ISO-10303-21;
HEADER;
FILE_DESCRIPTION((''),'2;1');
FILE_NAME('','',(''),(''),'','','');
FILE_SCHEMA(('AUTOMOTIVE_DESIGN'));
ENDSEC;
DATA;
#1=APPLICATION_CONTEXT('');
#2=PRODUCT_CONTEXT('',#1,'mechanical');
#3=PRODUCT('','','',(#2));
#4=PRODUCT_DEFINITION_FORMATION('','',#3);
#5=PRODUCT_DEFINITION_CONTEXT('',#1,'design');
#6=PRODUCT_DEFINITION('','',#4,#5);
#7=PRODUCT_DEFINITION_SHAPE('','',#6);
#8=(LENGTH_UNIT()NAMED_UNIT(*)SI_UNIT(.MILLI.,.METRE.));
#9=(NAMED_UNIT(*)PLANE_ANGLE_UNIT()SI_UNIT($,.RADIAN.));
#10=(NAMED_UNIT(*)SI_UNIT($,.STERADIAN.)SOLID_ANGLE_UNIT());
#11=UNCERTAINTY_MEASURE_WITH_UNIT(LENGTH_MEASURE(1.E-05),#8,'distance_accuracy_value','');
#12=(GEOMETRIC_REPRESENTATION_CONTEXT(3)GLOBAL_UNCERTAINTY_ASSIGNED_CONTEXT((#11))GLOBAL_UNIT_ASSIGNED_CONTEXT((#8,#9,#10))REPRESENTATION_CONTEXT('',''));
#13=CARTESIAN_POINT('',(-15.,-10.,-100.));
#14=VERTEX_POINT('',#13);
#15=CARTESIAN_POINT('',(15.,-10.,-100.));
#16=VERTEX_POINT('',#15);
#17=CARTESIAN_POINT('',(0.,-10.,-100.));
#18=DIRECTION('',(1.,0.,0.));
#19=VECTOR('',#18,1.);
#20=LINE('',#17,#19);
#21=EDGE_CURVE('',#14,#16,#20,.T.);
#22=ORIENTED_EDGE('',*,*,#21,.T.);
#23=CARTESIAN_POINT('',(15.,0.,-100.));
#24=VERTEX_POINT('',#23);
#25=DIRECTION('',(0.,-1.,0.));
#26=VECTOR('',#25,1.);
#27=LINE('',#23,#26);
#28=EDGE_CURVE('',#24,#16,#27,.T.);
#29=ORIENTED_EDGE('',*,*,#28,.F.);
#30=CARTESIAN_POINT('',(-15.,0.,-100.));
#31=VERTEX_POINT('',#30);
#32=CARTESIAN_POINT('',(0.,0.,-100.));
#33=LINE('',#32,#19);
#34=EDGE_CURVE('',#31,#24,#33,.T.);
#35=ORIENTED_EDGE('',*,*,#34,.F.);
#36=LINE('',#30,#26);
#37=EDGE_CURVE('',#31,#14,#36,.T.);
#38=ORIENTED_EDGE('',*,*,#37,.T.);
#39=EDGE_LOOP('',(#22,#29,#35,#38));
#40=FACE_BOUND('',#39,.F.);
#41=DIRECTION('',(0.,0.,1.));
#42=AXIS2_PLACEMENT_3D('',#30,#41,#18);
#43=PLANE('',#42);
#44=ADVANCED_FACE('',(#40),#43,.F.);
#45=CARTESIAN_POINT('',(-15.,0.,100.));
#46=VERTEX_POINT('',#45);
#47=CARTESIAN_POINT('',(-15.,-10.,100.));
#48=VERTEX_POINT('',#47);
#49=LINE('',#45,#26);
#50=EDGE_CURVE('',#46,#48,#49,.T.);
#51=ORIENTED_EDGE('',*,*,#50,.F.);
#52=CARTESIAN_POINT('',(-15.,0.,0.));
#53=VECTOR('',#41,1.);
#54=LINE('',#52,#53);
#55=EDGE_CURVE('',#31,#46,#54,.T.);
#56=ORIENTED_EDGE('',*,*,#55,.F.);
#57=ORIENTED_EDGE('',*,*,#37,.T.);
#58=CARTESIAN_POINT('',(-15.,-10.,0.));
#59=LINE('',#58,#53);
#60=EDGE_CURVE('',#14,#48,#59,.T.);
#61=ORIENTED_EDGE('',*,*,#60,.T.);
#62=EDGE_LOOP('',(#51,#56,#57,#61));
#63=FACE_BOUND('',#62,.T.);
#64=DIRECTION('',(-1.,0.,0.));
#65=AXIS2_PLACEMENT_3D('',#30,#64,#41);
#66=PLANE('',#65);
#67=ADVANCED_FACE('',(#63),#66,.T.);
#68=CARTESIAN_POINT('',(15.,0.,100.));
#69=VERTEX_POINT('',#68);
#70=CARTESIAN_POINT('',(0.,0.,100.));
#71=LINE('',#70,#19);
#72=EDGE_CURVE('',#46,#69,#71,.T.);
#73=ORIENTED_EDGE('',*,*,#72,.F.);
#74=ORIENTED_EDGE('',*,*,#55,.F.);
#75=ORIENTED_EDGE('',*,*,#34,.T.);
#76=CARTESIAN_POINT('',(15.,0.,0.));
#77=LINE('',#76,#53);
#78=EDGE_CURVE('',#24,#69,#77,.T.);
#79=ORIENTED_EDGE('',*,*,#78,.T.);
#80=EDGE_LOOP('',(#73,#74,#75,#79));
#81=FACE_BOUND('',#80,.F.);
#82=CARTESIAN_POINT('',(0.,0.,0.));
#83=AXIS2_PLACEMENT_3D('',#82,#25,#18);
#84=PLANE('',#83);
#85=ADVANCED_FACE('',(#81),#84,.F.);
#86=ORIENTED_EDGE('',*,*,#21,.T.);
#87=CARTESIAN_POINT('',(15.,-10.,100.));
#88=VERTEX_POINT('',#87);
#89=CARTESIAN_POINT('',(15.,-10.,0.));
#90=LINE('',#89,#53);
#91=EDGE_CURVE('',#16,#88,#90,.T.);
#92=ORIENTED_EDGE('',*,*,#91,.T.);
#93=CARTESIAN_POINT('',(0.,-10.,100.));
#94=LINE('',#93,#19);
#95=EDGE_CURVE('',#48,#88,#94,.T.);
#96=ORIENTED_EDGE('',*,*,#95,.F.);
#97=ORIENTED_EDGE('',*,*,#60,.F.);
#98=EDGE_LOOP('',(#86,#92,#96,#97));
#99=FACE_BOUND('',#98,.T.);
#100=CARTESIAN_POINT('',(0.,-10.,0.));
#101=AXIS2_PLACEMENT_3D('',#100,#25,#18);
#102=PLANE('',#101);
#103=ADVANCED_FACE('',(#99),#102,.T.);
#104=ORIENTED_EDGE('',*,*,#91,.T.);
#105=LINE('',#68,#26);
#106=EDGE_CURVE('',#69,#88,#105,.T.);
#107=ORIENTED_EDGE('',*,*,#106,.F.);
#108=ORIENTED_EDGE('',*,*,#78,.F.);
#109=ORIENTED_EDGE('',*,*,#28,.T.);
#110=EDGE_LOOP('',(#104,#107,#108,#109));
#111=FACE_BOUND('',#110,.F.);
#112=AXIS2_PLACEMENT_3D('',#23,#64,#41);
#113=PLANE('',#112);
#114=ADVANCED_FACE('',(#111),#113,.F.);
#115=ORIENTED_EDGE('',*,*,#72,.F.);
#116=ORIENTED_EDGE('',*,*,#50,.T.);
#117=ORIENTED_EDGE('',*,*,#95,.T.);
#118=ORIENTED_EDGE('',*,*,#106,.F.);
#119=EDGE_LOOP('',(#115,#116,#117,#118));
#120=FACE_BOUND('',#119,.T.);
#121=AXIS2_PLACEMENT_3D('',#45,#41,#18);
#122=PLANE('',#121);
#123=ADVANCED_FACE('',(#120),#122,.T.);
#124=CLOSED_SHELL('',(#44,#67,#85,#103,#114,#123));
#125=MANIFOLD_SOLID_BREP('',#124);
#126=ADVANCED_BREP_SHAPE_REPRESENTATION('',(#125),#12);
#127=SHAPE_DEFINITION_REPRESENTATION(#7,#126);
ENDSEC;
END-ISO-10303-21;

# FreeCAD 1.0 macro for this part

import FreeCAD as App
import Part
import Sketcher

V = App.Vector


def add_polygon(sketch, points):
    """Adds a closed chain of lines whose ends are joined by coincident constraints."""
    first, n = sketch.GeometryCount, len(points)
    for a, b in zip(points, points[1:] + points[:1]):
        sketch.addGeometry(Part.LineSegment(App.Vector(*a, 0), App.Vector(*b, 0)), False)
    for i in range(n):
        sketch.addConstraint(Sketcher.Constraint("Coincident", first + i, 2, first + (i + 1) % n, 1))

doc = App.newDocument("Part")
body = doc.addObject("PartDesign::Body", "Body")

# Sketch on XZ plane
sketch1 = body.newObject("Sketcher::SketchObject", "Sketch")
sketch1.AttachmentSupport = (doc.getObject("XZ_Plane"), [""])
sketch1.MapMode = "FlatFace"
add_polygon(sketch1, [(-15, 100), (-15, -100), (15, -100), (15, 100)])  # lines 0-3
sketch1.addConstraint([
    Sketcher.Constraint("Vertical", 0),
    Sketcher.Constraint("Horizontal", 1),
    Sketcher.Constraint("Vertical", 2),
    Sketcher.Constraint("Horizontal", 3),
    Sketcher.Constraint("Symmetric", 0, 2, 2, 2, -1, 1),
    Sketcher.Constraint("DistanceX", 1, 1, 1, 2, 30.0),
    Sketcher.Constraint("DistanceY", 0, 2, 0, 1, 200.0),
])
pad1 = body.newObject("PartDesign::Pad", "Pad")
pad1.Profile = sketch1
pad1.Length = 10

doc.recompute()
